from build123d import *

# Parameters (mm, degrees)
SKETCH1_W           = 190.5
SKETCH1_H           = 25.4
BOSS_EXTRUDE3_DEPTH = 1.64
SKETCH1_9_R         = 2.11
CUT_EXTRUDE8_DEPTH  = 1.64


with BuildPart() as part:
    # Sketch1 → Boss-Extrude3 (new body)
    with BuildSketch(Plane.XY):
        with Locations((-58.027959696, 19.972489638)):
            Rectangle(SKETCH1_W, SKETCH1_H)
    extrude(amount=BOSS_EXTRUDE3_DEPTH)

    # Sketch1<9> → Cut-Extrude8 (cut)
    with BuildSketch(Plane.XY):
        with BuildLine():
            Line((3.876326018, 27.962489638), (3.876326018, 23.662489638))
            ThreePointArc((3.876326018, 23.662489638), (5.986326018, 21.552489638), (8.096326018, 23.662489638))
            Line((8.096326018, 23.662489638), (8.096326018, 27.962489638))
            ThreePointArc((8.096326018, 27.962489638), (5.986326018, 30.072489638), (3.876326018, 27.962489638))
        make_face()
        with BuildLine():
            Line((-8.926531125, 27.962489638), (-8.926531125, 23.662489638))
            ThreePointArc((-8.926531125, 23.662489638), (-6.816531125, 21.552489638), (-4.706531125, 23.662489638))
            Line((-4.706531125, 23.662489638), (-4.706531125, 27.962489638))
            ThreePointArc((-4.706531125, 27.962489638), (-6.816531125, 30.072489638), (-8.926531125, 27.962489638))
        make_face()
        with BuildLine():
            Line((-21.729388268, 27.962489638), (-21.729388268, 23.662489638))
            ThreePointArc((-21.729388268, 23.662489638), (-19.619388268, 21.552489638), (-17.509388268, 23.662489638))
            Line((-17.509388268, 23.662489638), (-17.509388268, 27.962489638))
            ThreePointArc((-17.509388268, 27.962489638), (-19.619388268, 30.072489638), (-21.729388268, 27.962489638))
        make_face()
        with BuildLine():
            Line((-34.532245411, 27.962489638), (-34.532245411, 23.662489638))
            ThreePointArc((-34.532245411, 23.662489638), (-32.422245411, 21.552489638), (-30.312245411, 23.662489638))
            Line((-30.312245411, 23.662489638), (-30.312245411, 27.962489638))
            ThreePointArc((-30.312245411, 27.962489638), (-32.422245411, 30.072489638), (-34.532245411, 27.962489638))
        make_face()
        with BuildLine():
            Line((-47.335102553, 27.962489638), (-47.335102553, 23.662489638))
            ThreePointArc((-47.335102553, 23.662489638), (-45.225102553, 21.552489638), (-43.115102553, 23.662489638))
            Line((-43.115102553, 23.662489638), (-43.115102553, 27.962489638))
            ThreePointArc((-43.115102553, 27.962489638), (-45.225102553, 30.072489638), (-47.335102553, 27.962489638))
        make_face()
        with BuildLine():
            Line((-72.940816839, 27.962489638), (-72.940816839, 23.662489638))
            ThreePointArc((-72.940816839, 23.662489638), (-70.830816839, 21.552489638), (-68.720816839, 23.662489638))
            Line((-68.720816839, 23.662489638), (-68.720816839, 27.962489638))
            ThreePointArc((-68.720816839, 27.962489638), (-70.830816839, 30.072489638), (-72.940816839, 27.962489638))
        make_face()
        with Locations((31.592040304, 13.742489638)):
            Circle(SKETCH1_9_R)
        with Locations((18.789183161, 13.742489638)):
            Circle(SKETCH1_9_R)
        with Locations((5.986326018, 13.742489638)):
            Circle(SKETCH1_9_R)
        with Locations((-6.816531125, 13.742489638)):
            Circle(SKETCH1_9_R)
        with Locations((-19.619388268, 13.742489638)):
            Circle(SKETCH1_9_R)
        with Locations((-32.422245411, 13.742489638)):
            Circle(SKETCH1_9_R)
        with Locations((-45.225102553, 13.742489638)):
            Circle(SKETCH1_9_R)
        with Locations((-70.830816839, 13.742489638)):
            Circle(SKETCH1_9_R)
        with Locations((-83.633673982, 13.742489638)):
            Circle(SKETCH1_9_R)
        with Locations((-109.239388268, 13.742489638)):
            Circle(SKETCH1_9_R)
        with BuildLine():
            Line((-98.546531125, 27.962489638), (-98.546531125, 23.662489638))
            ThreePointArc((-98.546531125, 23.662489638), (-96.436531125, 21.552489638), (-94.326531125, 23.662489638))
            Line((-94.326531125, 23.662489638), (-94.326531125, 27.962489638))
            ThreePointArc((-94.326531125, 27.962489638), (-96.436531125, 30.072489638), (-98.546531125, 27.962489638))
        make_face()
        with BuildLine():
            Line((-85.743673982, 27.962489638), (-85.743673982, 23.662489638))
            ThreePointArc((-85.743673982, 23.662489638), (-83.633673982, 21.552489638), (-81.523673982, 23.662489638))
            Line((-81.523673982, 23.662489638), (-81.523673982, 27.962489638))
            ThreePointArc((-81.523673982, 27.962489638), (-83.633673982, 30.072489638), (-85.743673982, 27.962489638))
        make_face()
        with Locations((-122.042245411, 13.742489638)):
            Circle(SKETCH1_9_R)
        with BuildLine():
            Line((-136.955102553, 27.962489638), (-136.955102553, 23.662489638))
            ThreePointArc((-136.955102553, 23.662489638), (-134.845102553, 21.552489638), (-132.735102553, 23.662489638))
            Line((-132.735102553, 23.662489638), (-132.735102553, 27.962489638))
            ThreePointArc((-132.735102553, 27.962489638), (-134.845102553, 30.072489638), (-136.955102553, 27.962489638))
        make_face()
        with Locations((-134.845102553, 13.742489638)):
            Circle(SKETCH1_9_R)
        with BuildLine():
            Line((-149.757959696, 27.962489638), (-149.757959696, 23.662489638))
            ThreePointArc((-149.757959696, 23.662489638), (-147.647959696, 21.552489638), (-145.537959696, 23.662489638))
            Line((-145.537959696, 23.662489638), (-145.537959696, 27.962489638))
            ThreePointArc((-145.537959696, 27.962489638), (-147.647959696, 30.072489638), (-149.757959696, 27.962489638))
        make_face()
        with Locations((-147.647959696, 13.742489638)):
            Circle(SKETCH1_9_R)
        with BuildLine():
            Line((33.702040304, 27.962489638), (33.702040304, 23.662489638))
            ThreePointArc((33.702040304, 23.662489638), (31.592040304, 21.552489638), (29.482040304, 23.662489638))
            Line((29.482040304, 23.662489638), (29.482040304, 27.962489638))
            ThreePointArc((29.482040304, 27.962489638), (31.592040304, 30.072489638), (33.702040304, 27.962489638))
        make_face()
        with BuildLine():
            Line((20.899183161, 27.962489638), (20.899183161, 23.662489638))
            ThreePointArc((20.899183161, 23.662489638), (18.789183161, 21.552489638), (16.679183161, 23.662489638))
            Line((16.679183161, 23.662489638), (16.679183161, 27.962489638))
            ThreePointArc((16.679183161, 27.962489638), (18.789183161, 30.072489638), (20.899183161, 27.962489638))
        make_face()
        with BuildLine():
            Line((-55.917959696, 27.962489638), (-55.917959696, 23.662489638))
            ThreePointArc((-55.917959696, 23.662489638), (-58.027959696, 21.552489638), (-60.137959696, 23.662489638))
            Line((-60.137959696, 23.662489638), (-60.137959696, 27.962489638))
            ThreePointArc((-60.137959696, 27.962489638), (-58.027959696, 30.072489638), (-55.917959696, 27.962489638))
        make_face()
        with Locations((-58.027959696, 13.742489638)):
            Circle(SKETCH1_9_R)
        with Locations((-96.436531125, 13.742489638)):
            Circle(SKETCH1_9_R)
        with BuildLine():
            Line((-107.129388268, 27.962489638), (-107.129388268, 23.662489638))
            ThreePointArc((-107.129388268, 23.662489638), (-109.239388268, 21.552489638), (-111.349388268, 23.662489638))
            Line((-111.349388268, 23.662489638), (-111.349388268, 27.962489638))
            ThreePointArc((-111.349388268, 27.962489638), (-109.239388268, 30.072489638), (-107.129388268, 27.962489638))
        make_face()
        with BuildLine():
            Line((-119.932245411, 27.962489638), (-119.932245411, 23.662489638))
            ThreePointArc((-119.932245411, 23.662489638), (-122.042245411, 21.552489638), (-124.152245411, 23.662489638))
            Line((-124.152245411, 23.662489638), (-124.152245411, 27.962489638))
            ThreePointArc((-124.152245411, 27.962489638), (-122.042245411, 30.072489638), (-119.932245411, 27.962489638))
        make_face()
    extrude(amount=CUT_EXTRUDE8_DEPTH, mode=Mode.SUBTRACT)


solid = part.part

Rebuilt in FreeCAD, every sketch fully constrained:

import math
import FreeCAD as App
import Part
import Sketcher
from FreeCAD import Vector
Q = App.Units.Quantity

doc = App.newDocument("Part")
params = doc.addObject("Spreadsheet::Sheet", "Params")
for row, (alias, value) in enumerate([
    ("sketch1_height", "1 in"),
    ("sketch1_width", "7.5 in"),
    ("pad1_length", "1.64 mm"),
    ("pocket1_length", "1.64 mm"),
], start=1):
    params.set(f"A{row}", alias)
    params.set(f"B{row}", "=" + value)
    params.setAlias(f"B{row}", alias)

body = doc.addObject("PartDesign::Body", "Body")

sketch1 = body.newObject("Sketcher::SketchObject", "Sketch")
sketch1.AttachmentSupport = (doc.getObject("XY_Plane"), [""])
sketch1.MapMode = "FlatFace"
sketch1.addGeometry(Part.LineSegment(Vector(-153.27796, 32.67249, 0), Vector(-153.27796, 7.27249, 0)), False)
sketch1.addGeometry(Part.LineSegment(Vector(-153.27796, 7.27249, 0), Vector(37.22204, 7.27249, 0)), False)
sketch1.addGeometry(Part.LineSegment(Vector(37.22204, 7.27249, 0), Vector(37.22204, 32.67249, 0)), False)
sketch1.addGeometry(Part.LineSegment(Vector(37.22204, 32.67249, 0), Vector(-153.27796, 32.67249, 0)), False)
sketch1.addConstraint(Sketcher.Constraint("Coincident", 0, 2, 1, 1))
sketch1.addConstraint(Sketcher.Constraint("Coincident", 1, 2, 2, 1))
sketch1.addConstraint(Sketcher.Constraint("Coincident", 2, 2, 3, 1))
sketch1.addConstraint(Sketcher.Constraint("Coincident", 3, 2, 0, 1))
sketch1.addConstraint(Sketcher.Constraint("Vertical", 0))
sketch1.addConstraint(Sketcher.Constraint("Horizontal", 1))
sketch1.addConstraint(Sketcher.Constraint("Vertical", 2))
sketch1.addConstraint(Sketcher.Constraint("Horizontal", 3))
sketch1.addConstraint(Sketcher.Constraint("DistanceY", 0, 2, 0, 1, Q("1 in")))
sketch1.addConstraint(Sketcher.Constraint("DistanceX", 1, 1, 1, 2, Q("7.5 in")))
sketch1.addConstraint(Sketcher.Constraint("DistanceX", 0, 2, -1, 1, 153.27796))
sketch1.addConstraint(Sketcher.Constraint("DistanceY", -1, 1, 0, 2, 7.27249))
sketch1.setExpression("Constraints[8]", "Params.sketch1_height")
sketch1.setExpression("Constraints[9]", "Params.sketch1_width")
pad1 = body.newObject("PartDesign::Pad", "Pad")
pad1.Profile = sketch1
pad1.setExpression("Length", "Params.pad1_length")

sketch2 = body.newObject("Sketcher::SketchObject", "Sketch001")
sketch2.AttachmentSupport = (doc.getObject("XY_Plane"), [""])
sketch2.MapMode = "FlatFace"
sketch2.addGeometry(Part.LineSegment(Vector(3.876326, 27.96249, 0), Vector(3.876326, 23.66249, 0)), False)
sketch2.addGeometry(Part.ArcOfCircle(Part.Circle(Vector(5.986326, 23.66249, 0), Vector(0, 0, 1), 2.11), math.radians(180), math.radians(360)), False)
sketch2.addGeometry(Part.LineSegment(Vector(8.096326, 23.66249, 0), Vector(8.096326, 27.96249, 0)), False)
sketch2.addGeometry(Part.ArcOfCircle(Part.Circle(Vector(5.986326, 27.96249, 0), Vector(0, 0, 1), 2.11), math.radians(0), math.radians(180)), False)
sketch2.addGeometry(Part.LineSegment(Vector(-8.926531, 27.96249, 0), Vector(-8.926531, 23.66249, 0)), False)
sketch2.addGeometry(Part.ArcOfCircle(Part.Circle(Vector(-6.816531, 23.66249, 0), Vector(0, 0, 1), 2.11), math.radians(180), math.radians(360)), False)
sketch2.addGeometry(Part.LineSegment(Vector(-4.706531, 23.66249, 0), Vector(-4.706531, 27.96249, 0)), False)
sketch2.addGeometry(Part.ArcOfCircle(Part.Circle(Vector(-6.816531, 27.96249, 0), Vector(0, 0, 1), 2.11), math.radians(0), math.radians(180)), False)
sketch2.addGeometry(Part.LineSegment(Vector(-21.729388, 27.96249, 0), Vector(-21.729388, 23.66249, 0)), False)
sketch2.addGeometry(Part.ArcOfCircle(Part.Circle(Vector(-19.619388, 23.66249, 0), Vector(0, 0, 1), 2.11), math.radians(180), math.radians(360)), False)
sketch2.addGeometry(Part.LineSegment(Vector(-17.509388, 23.66249, 0), Vector(-17.509388, 27.96249, 0)), False)
sketch2.addGeometry(Part.ArcOfCircle(Part.Circle(Vector(-19.619388, 27.96249, 0), Vector(0, 0, 1), 2.11), math.radians(0), math.radians(180)), False)
sketch2.addGeometry(Part.LineSegment(Vector(-34.532245, 27.96249, 0), Vector(-34.532245, 23.66249, 0)), False)
sketch2.addGeometry(Part.ArcOfCircle(Part.Circle(Vector(-32.422245, 23.66249, 0), Vector(0, 0, 1), 2.11), math.radians(180), math.radians(360)), False)
sketch2.addGeometry(Part.LineSegment(Vector(-30.312245, 23.66249, 0), Vector(-30.312245, 27.96249, 0)), False)
sketch2.addGeometry(Part.ArcOfCircle(Part.Circle(Vector(-32.422245, 27.96249, 0), Vector(0, 0, 1), 2.11), math.radians(0), math.radians(180)), False)
sketch2.addGeometry(Part.LineSegment(Vector(-47.335103, 27.96249, 0), Vector(-47.335103, 23.66249, 0)), False)
sketch2.addGeometry(Part.ArcOfCircle(Part.Circle(Vector(-45.225103, 23.66249, 0), Vector(0, 0, 1), 2.11), math.radians(180), math.radians(360)), False)
sketch2.addGeometry(Part.LineSegment(Vector(-43.115103, 23.66249, 0), Vector(-43.115103, 27.96249, 0)), False)
sketch2.addGeometry(Part.ArcOfCircle(Part.Circle(Vector(-45.225103, 27.96249, 0), Vector(0, 0, 1), 2.11), math.radians(0), math.radians(180)), False)
sketch2.addGeometry(Part.LineSegment(Vector(-72.940817, 27.96249, 0), Vector(-72.940817, 23.66249, 0)), False)
sketch2.addGeometry(Part.ArcOfCircle(Part.Circle(Vector(-70.830817, 23.66249, 0), Vector(0, 0, 1), 2.11), math.radians(180), math.radians(360)), False)
sketch2.addGeometry(Part.LineSegment(Vector(-68.720817, 23.66249, 0), Vector(-68.720817, 27.96249, 0)), False)
sketch2.addGeometry(Part.ArcOfCircle(Part.Circle(Vector(-70.830817, 27.96249, 0), Vector(0, 0, 1), 2.11), math.radians(0), math.radians(180)), False)
sketch2.addGeometry(Part.Circle(Vector(31.59204, 13.74249, 0), Vector(0, 0, 1), 2.11), False)
sketch2.addGeometry(Part.Circle(Vector(18.789183, 13.74249, 0), Vector(0, 0, 1), 2.11), False)
sketch2.addGeometry(Part.Circle(Vector(5.986326, 13.74249, 0), Vector(0, 0, 1), 2.11), False)
sketch2.addGeometry(Part.Circle(Vector(-6.816531, 13.74249, 0), Vector(0, 0, 1), 2.11), False)
sketch2.addGeometry(Part.Circle(Vector(-19.619388, 13.74249, 0), Vector(0, 0, 1), 2.11), False)
sketch2.addGeometry(Part.Circle(Vector(-32.422245, 13.74249, 0), Vector(0, 0, 1), 2.11), False)
sketch2.addGeometry(Part.Circle(Vector(-45.225103, 13.74249, 0), Vector(0, 0, 1), 2.11), False)
sketch2.addGeometry(Part.Circle(Vector(-70.830817, 13.74249, 0), Vector(0, 0, 1), 2.11), False)
sketch2.addGeometry(Part.Circle(Vector(-83.633674, 13.74249, 0), Vector(0, 0, 1), 2.11), False)
sketch2.addGeometry(Part.Circle(Vector(-109.239388, 13.74249, 0), Vector(0, 0, 1), 2.11), False)
sketch2.addGeometry(Part.LineSegment(Vector(-98.546531, 27.96249, 0), Vector(-98.546531, 23.66249, 0)), False)
sketch2.addGeometry(Part.ArcOfCircle(Part.Circle(Vector(-96.436531, 23.66249, 0), Vector(0, 0, 1), 2.11), math.radians(180), math.radians(360)), False)
sketch2.addGeometry(Part.LineSegment(Vector(-94.326531, 23.66249, 0), Vector(-94.326531, 27.96249, 0)), False)
sketch2.addGeometry(Part.ArcOfCircle(Part.Circle(Vector(-96.436531, 27.96249, 0), Vector(0, 0, 1), 2.11), math.radians(0), math.radians(180)), False)
sketch2.addGeometry(Part.LineSegment(Vector(-85.743674, 27.96249, 0), Vector(-85.743674, 23.66249, 0)), False)
sketch2.addGeometry(Part.ArcOfCircle(Part.Circle(Vector(-83.633674, 23.66249, 0), Vector(0, 0, 1), 2.11), math.radians(180), math.radians(360)), False)
sketch2.addGeometry(Part.LineSegment(Vector(-81.523674, 23.66249, 0), Vector(-81.523674, 27.96249, 0)), False)
sketch2.addGeometry(Part.ArcOfCircle(Part.Circle(Vector(-83.633674, 27.96249, 0), Vector(0, 0, 1), 2.11), math.radians(0), math.radians(180)), False)
sketch2.addGeometry(Part.Circle(Vector(-122.042245, 13.74249, 0), Vector(0, 0, 1), 2.11), False)
sketch2.addGeometry(Part.LineSegment(Vector(-136.955103, 27.96249, 0), Vector(-136.955103, 23.66249, 0)), False)
sketch2.addGeometry(Part.ArcOfCircle(Part.Circle(Vector(-134.845103, 23.66249, 0), Vector(0, 0, 1), 2.11), math.radians(180), math.radians(360)), False)
sketch2.addGeometry(Part.LineSegment(Vector(-132.735103, 23.66249, 0), Vector(-132.735103, 27.96249, 0)), False)
sketch2.addGeometry(Part.ArcOfCircle(Part.Circle(Vector(-134.845103, 27.96249, 0), Vector(0, 0, 1), 2.11), math.radians(0), math.radians(180)), False)
sketch2.addGeometry(Part.Circle(Vector(-134.845103, 13.74249, 0), Vector(0, 0, 1), 2.11), False)
sketch2.addGeometry(Part.LineSegment(Vector(-149.75796, 27.96249, 0), Vector(-149.75796, 23.66249, 0)), False)
sketch2.addGeometry(Part.ArcOfCircle(Part.Circle(Vector(-147.64796, 23.66249, 0), Vector(0, 0, 1), 2.11), math.radians(180), math.radians(360)), False)
sketch2.addGeometry(Part.LineSegment(Vector(-145.53796, 23.66249, 0), Vector(-145.53796, 27.96249, 0)), False)
sketch2.addGeometry(Part.ArcOfCircle(Part.Circle(Vector(-147.64796, 27.96249, 0), Vector(0, 0, 1), 2.11), math.radians(0), math.radians(180)), False)
sketch2.addGeometry(Part.Circle(Vector(-147.64796, 13.74249, 0), Vector(0, 0, 1), 2.11), False)
sketch2.addGeometry(Part.LineSegment(Vector(33.70204, 23.66249, 0), Vector(33.70204, 27.96249, 0)), False)
sketch2.addGeometry(Part.ArcOfCircle(Part.Circle(Vector(31.59204, 27.96249, 0), Vector(0, 0, 1), 2.11), math.radians(0), math.radians(180)), False)
sketch2.addGeometry(Part.LineSegment(Vector(29.48204, 27.96249, 0), Vector(29.48204, 23.66249, 0)), False)
sketch2.addGeometry(Part.ArcOfCircle(Part.Circle(Vector(31.59204, 23.66249, 0), Vector(0, 0, 1), 2.11), math.radians(180), math.radians(360)), False)
sketch2.addGeometry(Part.LineSegment(Vector(20.899183, 23.66249, 0), Vector(20.899183, 27.96249, 0)), False)
sketch2.addGeometry(Part.ArcOfCircle(Part.Circle(Vector(18.789183, 27.96249, 0), Vector(0, 0, 1), 2.11), math.radians(0), math.radians(180)), False)
sketch2.addGeometry(Part.LineSegment(Vector(16.679183, 27.96249, 0), Vector(16.679183, 23.66249, 0)), False)
sketch2.addGeometry(Part.ArcOfCircle(Part.Circle(Vector(18.789183, 23.66249, 0), Vector(0, 0, 1), 2.11), math.radians(180), math.radians(360)), False)
sketch2.addGeometry(Part.LineSegment(Vector(-55.91796, 23.66249, 0), Vector(-55.91796, 27.96249, 0)), False)
sketch2.addGeometry(Part.ArcOfCircle(Part.Circle(Vector(-58.02796, 27.96249, 0), Vector(0, 0, 1), 2.11), math.radians(0), math.radians(180)), False)
sketch2.addGeometry(Part.LineSegment(Vector(-60.13796, 27.96249, 0), Vector(-60.13796, 23.66249, 0)), False)
sketch2.addGeometry(Part.ArcOfCircle(Part.Circle(Vector(-58.02796, 23.66249, 0), Vector(0, 0, 1), 2.11), math.radians(180), math.radians(360)), False)
sketch2.addGeometry(Part.Circle(Vector(-58.02796, 13.74249, 0), Vector(0, 0, 1), 2.11), False)
sketch2.addGeometry(Part.Circle(Vector(-96.436531, 13.74249, 0), Vector(0, 0, 1), 2.11), False)
sketch2.addGeometry(Part.LineSegment(Vector(-107.129388, 23.66249, 0), Vector(-107.129388, 27.96249, 0)), False)
sketch2.addGeometry(Part.ArcOfCircle(Part.Circle(Vector(-109.239388, 27.96249, 0), Vector(0, 0, 1), 2.11), math.radians(0), math.radians(180)), False)
sketch2.addGeometry(Part.LineSegment(Vector(-111.349388, 27.96249, 0), Vector(-111.349388, 23.66249, 0)), False)
sketch2.addGeometry(Part.ArcOfCircle(Part.Circle(Vector(-109.239388, 23.66249, 0), Vector(0, 0, 1), 2.11), math.radians(180), math.radians(360)), False)
sketch2.addGeometry(Part.LineSegment(Vector(-119.932245, 23.66249, 0), Vector(-119.932245, 27.96249, 0)), False)
sketch2.addGeometry(Part.ArcOfCircle(Part.Circle(Vector(-122.042245, 27.96249, 0), Vector(0, 0, 1), 2.11), math.radians(0), math.radians(180)), False)
sketch2.addGeometry(Part.LineSegment(Vector(-124.152245, 27.96249, 0), Vector(-124.152245, 23.66249, 0)), False)
sketch2.addGeometry(Part.ArcOfCircle(Part.Circle(Vector(-122.042245, 23.66249, 0), Vector(0, 0, 1), 2.11), math.radians(180), math.radians(360)), False)
sketch2.addConstraint(Sketcher.Constraint("Tangent", 0, 2, 1, 1))
sketch2.addConstraint(Sketcher.Constraint("Tangent", 1, 2, 2, 1))
sketch2.addConstraint(Sketcher.Constraint("Tangent", 2, 2, 3, 1))
sketch2.addConstraint(Sketcher.Constraint("Tangent", 3, 2, 0, 1))
sketch2.addConstraint(Sketcher.Constraint("Tangent", 4, 2, 5, 1))
sketch2.addConstraint(Sketcher.Constraint("Tangent", 5, 2, 6, 1))
sketch2.addConstraint(Sketcher.Constraint("Tangent", 6, 2, 7, 1))
sketch2.addConstraint(Sketcher.Constraint("Tangent", 7, 2, 4, 1))
sketch2.addConstraint(Sketcher.Constraint("Tangent", 8, 2, 9, 1))
sketch2.addConstraint(Sketcher.Constraint("Tangent", 9, 2, 10, 1))
sketch2.addConstraint(Sketcher.Constraint("Tangent", 10, 2, 11, 1))
sketch2.addConstraint(Sketcher.Constraint("Tangent", 11, 2, 8, 1))
sketch2.addConstraint(Sketcher.Constraint("Tangent", 12, 2, 13, 1))
sketch2.addConstraint(Sketcher.Constraint("Tangent", 13, 2, 14, 1))
sketch2.addConstraint(Sketcher.Constraint("Tangent", 14, 2, 15, 1))
sketch2.addConstraint(Sketcher.Constraint("Tangent", 15, 2, 12, 1))
sketch2.addConstraint(Sketcher.Constraint("Tangent", 16, 2, 17, 1))
sketch2.addConstraint(Sketcher.Constraint("Tangent", 17, 2, 18, 1))
sketch2.addConstraint(Sketcher.Constraint("Tangent", 18, 2, 19, 1))
sketch2.addConstraint(Sketcher.Constraint("Tangent", 19, 2, 16, 1))
sketch2.addConstraint(Sketcher.Constraint("Tangent", 20, 2, 21, 1))
sketch2.addConstraint(Sketcher.Constraint("Tangent", 21, 2, 22, 1))
sketch2.addConstraint(Sketcher.Constraint("Tangent", 22, 2, 23, 1))
sketch2.addConstraint(Sketcher.Constraint("Tangent", 23, 2, 20, 1))
sketch2.addConstraint(Sketcher.Constraint("Tangent", 34, 2, 35, 1))
sketch2.addConstraint(Sketcher.Constraint("Tangent", 35, 2, 36, 1))
sketch2.addConstraint(Sketcher.Constraint("Tangent", 36, 2, 37, 1))
sketch2.addConstraint(Sketcher.Constraint("Tangent", 37, 2, 34, 1))
sketch2.addConstraint(Sketcher.Constraint("Tangent", 38, 2, 39, 1))
sketch2.addConstraint(Sketcher.Constraint("Tangent", 39, 2, 40, 1))
sketch2.addConstraint(Sketcher.Constraint("Tangent", 40, 2, 41, 1))
sketch2.addConstraint(Sketcher.Constraint("Tangent", 41, 2, 38, 1))
sketch2.addConstraint(Sketcher.Constraint("Tangent", 43, 2, 44, 1))
sketch2.addConstraint(Sketcher.Constraint("Tangent", 44, 2, 45, 1))
sketch2.addConstraint(Sketcher.Constraint("Tangent", 45, 2, 46, 1))
sketch2.addConstraint(Sketcher.Constraint("Tangent", 46, 2, 43, 1))
sketch2.addConstraint(Sketcher.Constraint("Tangent", 48, 2, 49, 1))
sketch2.addConstraint(Sketcher.Constraint("Tangent", 49, 2, 50, 1))
sketch2.addConstraint(Sketcher.Constraint("Tangent", 50, 2, 51, 1))
sketch2.addConstraint(Sketcher.Constraint("Tangent", 51, 2, 48, 1))
sketch2.addConstraint(Sketcher.Constraint("Tangent", 53, 2, 54, 1))
sketch2.addConstraint(Sketcher.Constraint("Tangent", 54, 2, 55, 1))
sketch2.addConstraint(Sketcher.Constraint("Tangent", 55, 2, 56, 1))
sketch2.addConstraint(Sketcher.Constraint("Tangent", 56, 2, 53, 1))
sketch2.addConstraint(Sketcher.Constraint("Tangent", 57, 2, 58, 1))
sketch2.addConstraint(Sketcher.Constraint("Tangent", 58, 2, 59, 1))
sketch2.addConstraint(Sketcher.Constraint("Tangent", 59, 2, 60, 1))
sketch2.addConstraint(Sketcher.Constraint("Tangent", 60, 2, 57, 1))
sketch2.addConstraint(Sketcher.Constraint("Tangent", 61, 2, 62, 1))
sketch2.addConstraint(Sketcher.Constraint("Tangent", 62, 2, 63, 1))
sketch2.addConstraint(Sketcher.Constraint("Tangent", 63, 2, 64, 1))
sketch2.addConstraint(Sketcher.Constraint("Tangent", 64, 2, 61, 1))
sketch2.addConstraint(Sketcher.Constraint("Tangent", 67, 2, 68, 1))
sketch2.addConstraint(Sketcher.Constraint("Tangent", 68, 2, 69, 1))
sketch2.addConstraint(Sketcher.Constraint("Tangent", 69, 2, 70, 1))
sketch2.addConstraint(Sketcher.Constraint("Tangent", 70, 2, 67, 1))
sketch2.addConstraint(Sketcher.Constraint("Tangent", 71, 2, 72, 1))
sketch2.addConstraint(Sketcher.Constraint("Tangent", 72, 2, 73, 1))
sketch2.addConstraint(Sketcher.Constraint("Tangent", 73, 2, 74, 1))
sketch2.addConstraint(Sketcher.Constraint("Tangent", 74, 2, 71, 1))
sketch2.addConstraint(Sketcher.Constraint("Vertical", 0))
sketch2.addConstraint(Sketcher.Constraint("Vertical", 2))
sketch2.addConstraint(Sketcher.Constraint("Vertical", 4))
sketch2.addConstraint(Sketcher.Constraint("Vertical", 6))
sketch2.addConstraint(Sketcher.Constraint("Vertical", 8))
sketch2.addConstraint(Sketcher.Constraint("Vertical", 10))
sketch2.addConstraint(Sketcher.Constraint("Vertical", 12))
sketch2.addConstraint(Sketcher.Constraint("Vertical", 14))
sketch2.addConstraint(Sketcher.Constraint("Vertical", 16))
sketch2.addConstraint(Sketcher.Constraint("Vertical", 18))
sketch2.addConstraint(Sketcher.Constraint("Vertical", 20))
sketch2.addConstraint(Sketcher.Constraint("Vertical", 22))
sketch2.addConstraint(Sketcher.Constraint("Vertical", 34))
sketch2.addConstraint(Sketcher.Constraint("Vertical", 36))
sketch2.addConstraint(Sketcher.Constraint("Vertical", 38))
sketch2.addConstraint(Sketcher.Constraint("Vertical", 40))
sketch2.addConstraint(Sketcher.Constraint("Vertical", 43))
sketch2.addConstraint(Sketcher.Constraint("Vertical", 45))
sketch2.addConstraint(Sketcher.Constraint("Vertical", 48))
sketch2.addConstraint(Sketcher.Constraint("Vertical", 50))
sketch2.addConstraint(Sketcher.Constraint("Vertical", 53))
sketch2.addConstraint(Sketcher.Constraint("Vertical", 55))
sketch2.addConstraint(Sketcher.Constraint("Vertical", 57))
sketch2.addConstraint(Sketcher.Constraint("Vertical", 59))
sketch2.addConstraint(Sketcher.Constraint("Vertical", 61))
sketch2.addConstraint(Sketcher.Constraint("Vertical", 63))
sketch2.addConstraint(Sketcher.Constraint("Vertical", 67))
sketch2.addConstraint(Sketcher.Constraint("Vertical", 69))
sketch2.addConstraint(Sketcher.Constraint("Vertical", 71))
sketch2.addConstraint(Sketcher.Constraint("Vertical", 73))
sketch2.addConstraint(Sketcher.Constraint("Equal", 3, 5))
sketch2.addConstraint(Sketcher.Constraint("Equal", 7, 9))
sketch2.addConstraint(Sketcher.Constraint("Equal", 11, 13))
sketch2.addConstraint(Sketcher.Constraint("Equal", 15, 17))
sketch2.addConstraint(Sketcher.Constraint("Equal", 19, 21))
sketch2.addConstraint(Sketcher.Constraint("Equal", 23, 24))
sketch2.addConstraint(Sketcher.Constraint("Equal", 24, 25))
sketch2.addConstraint(Sketcher.Constraint("Equal", 25, 26))
sketch2.addConstraint(Sketcher.Constraint("Equal", 26, 27))
sketch2.addConstraint(Sketcher.Constraint("Equal", 27, 28))
sketch2.addConstraint(Sketcher.Constraint("Equal", 28, 29))
sketch2.addConstraint(Sketcher.Constraint("Equal", 29, 30))
sketch2.addConstraint(Sketcher.Constraint("Equal", 30, 31))
sketch2.addConstraint(Sketcher.Constraint("Equal", 31, 32))
sketch2.addConstraint(Sketcher.Constraint("Equal", 32, 33))
sketch2.addConstraint(Sketcher.Constraint("Equal", 33, 35))
sketch2.addConstraint(Sketcher.Constraint("Equal", 37, 39))
sketch2.addConstraint(Sketcher.Constraint("Equal", 41, 42))
sketch2.addConstraint(Sketcher.Constraint("Equal", 42, 44))
sketch2.addConstraint(Sketcher.Constraint("Equal", 46, 47))
sketch2.addConstraint(Sketcher.Constraint("Equal", 47, 49))
sketch2.addConstraint(Sketcher.Constraint("Equal", 51, 52))
sketch2.addConstraint(Sketcher.Constraint("Equal", 52, 54))
sketch2.addConstraint(Sketcher.Constraint("Equal", 56, 58))
sketch2.addConstraint(Sketcher.Constraint("Equal", 60, 62))
sketch2.addConstraint(Sketcher.Constraint("Equal", 64, 65))
sketch2.addConstraint(Sketcher.Constraint("Equal", 65, 66))
sketch2.addConstraint(Sketcher.Constraint("Equal", 66, 68))
sketch2.addConstraint(Sketcher.Constraint("Equal", 70, 72))
sketch2.addConstraint(Sketcher.Constraint("Horizontal", 1, 3, 5, 3))
sketch2.addConstraint(Sketcher.Constraint("Horizontal", 3, 3, 7, 3))
sketch2.addConstraint(Sketcher.Constraint("Horizontal", 5, 3, 9, 3))
sketch2.addConstraint(Sketcher.Constraint("Horizontal", 7, 3, 11, 3))
sketch2.addConstraint(Sketcher.Constraint("Horizontal", 9, 3, 13, 3))
sketch2.addConstraint(Sketcher.Constraint("Horizontal", 11, 3, 15, 3))
sketch2.addConstraint(Sketcher.Constraint("Horizontal", 13, 3, 17, 3))
sketch2.addConstraint(Sketcher.Constraint("Horizontal", 15, 3, 19, 3))
sketch2.addConstraint(Sketcher.Constraint("Horizontal", 17, 3, 21, 3))
sketch2.addConstraint(Sketcher.Constraint("Horizontal", 19, 3, 23, 3))
sketch2.addConstraint(Sketcher.Constraint("Horizontal", 24, 3, 25, 3))
sketch2.addConstraint(Sketcher.Constraint("Horizontal", 25, 3, 26, 3))
sketch2.addConstraint(Sketcher.Constraint("Horizontal", 26, 3, 27, 3))
sketch2.addConstraint(Sketcher.Constraint("Horizontal", 27, 3, 28, 3))
sketch2.addConstraint(Sketcher.Constraint("Horizontal", 28, 3, 29, 3))
sketch2.addConstraint(Sketcher.Constraint("Horizontal", 29, 3, 30, 3))
sketch2.addConstraint(Sketcher.Constraint("Horizontal", 30, 3, 31, 3))
sketch2.addConstraint(Sketcher.Constraint("Horizontal", 31, 3, 32, 3))
sketch2.addConstraint(Sketcher.Constraint("Horizontal", 32, 3, 33, 3))
sketch2.addConstraint(Sketcher.Constraint("Horizontal", 21, 3, 35, 3))
sketch2.addConstraint(Sketcher.Constraint("Horizontal", 23, 3, 37, 3))
sketch2.addConstraint(Sketcher.Constraint("Horizontal", 35, 3, 39, 3))
sketch2.addConstraint(Sketcher.Constraint("Horizontal", 37, 3, 41, 3))
sketch2.addConstraint(Sketcher.Constraint("Horizontal", 33, 3, 42, 3))
sketch2.addConstraint(Sketcher.Constraint("Horizontal", 39, 3, 44, 3))
sketch2.addConstraint(Sketcher.Constraint("Horizontal", 41, 3, 46, 3))
sketch2.addConstraint(Sketcher.Constraint("Horizontal", 42, 3, 47, 3))
sketch2.addConstraint(Sketcher.Constraint("Horizontal", 44, 3, 49, 3))
sketch2.addConstraint(Sketcher.Constraint("Horizontal", 46, 3, 51, 3))
sketch2.addConstraint(Sketcher.Constraint("Horizontal", 47, 3, 52, 3))
sketch2.addConstraint(Sketcher.Constraint("Horizontal", 51, 3, 54, 3))
sketch2.addConstraint(Sketcher.Constraint("Horizontal", 49, 3, 56, 3))
sketch2.addConstraint(Sketcher.Constraint("Horizontal", 54, 3, 58, 3))
sketch2.addConstraint(Sketcher.Constraint("Horizontal", 56, 3, 60, 3))
sketch2.addConstraint(Sketcher.Constraint("Horizontal", 58, 3, 62, 3))
sketch2.addConstraint(Sketcher.Constraint("Horizontal", 60, 3, 64, 3))
sketch2.addConstraint(Sketcher.Constraint("Horizontal", 52, 3, 65, 3))
sketch2.addConstraint(Sketcher.Constraint("Horizontal", 65, 3, 66, 3))
sketch2.addConstraint(Sketcher.Constraint("Horizontal", 62, 3, 68, 3))
sketch2.addConstraint(Sketcher.Constraint("Horizontal", 64, 3, 70, 3))
sketch2.addConstraint(Sketcher.Constraint("Horizontal", 68, 3, 72, 3))
sketch2.addConstraint(Sketcher.Constraint("Horizontal", 70, 3, 74, 3))
sketch2.addConstraint(Sketcher.Constraint("Vertical", 3, 3, 26, 3))
sketch2.addConstraint(Sketcher.Constraint("Vertical", 7, 3, 27, 3))
sketch2.addConstraint(Sketcher.Constraint("Vertical", 11, 3, 28, 3))
sketch2.addConstraint(Sketcher.Constraint("Vertical", 15, 3, 29, 3))
sketch2.addConstraint(Sketcher.Constraint("Vertical", 19, 3, 30, 3))
sketch2.addConstraint(Sketcher.Constraint("Vertical", 23, 3, 31, 3))
sketch2.addConstraint(Sketcher.Constraint("Vertical", 32, 3, 39, 3))
sketch2.addConstraint(Sketcher.Constraint("Vertical", 46, 3, 47, 3))
sketch2.addConstraint(Sketcher.Constraint("Vertical", 51, 3, 52, 3))
sketch2.addConstraint(Sketcher.Constraint("Vertical", 24, 3, 54, 3))
sketch2.addConstraint(Sketcher.Constraint("Vertical", 25, 3, 58, 3))
sketch2.addConstraint(Sketcher.Constraint("Vertical", 64, 3, 65, 3))
sketch2.addConstraint(Sketcher.Constraint("Vertical", 37, 3, 66, 3))
sketch2.addConstraint(Sketcher.Constraint("Vertical", 33, 3, 68, 3))
sketch2.addConstraint(Sketcher.Constraint("Vertical", 42, 3, 72, 3))
sketch2.addConstraint(Sketcher.Constraint("Diameter", 24, 4.22))
sketch2.addConstraint(Sketcher.Constraint("DistanceY", 0, 2, 0, 1, 4.3))
sketch2.addConstraint(Sketcher.Constraint("DistanceY", -1, 1, 1, 3, 23.66249))
sketch2.addConstraint(Sketcher.Constraint("DistanceX", 5, 3, -1, 1, 6.816531))
sketch2.addConstraint(Sketcher.Constraint("DistanceX", 9, 3, -1, 1, 19.619388))
sketch2.addConstraint(Sketcher.Constraint("DistanceX", -1, 1, 24, 3, 31.59204))
sketch2.addConstraint(Sketcher.Constraint("DistanceY", -1, 1, 24, 3, 13.74249))
sketch2.addConstraint(Sketcher.Constraint("DistanceX", 33, 3, -1, 1, 109.239388))
sketch2.addConstraint(Sketcher.Constraint("DistanceX", 35, 3, -1, 1, 96.436531))
sketch2.addConstraint(Sketcher.Constraint("DistanceX", 49, 3, -1, 1, 147.64796))
sketch2.addConstraint(Sketcher.Constraint("DistanceX", 62, 3, -1, 1, 58.02796))
sketch2.addConstraint(Sketcher.Constraint("DistanceX", -1, 1, 1, 3, 5.986326))
sketch2.addConstraint(Sketcher.Constraint("DistanceX", 13, 3, -1, 1, 32.422245))
sketch2.addConstraint(Sketcher.Constraint("DistanceX", 17, 3, -1, 1, 45.225103))
sketch2.addConstraint(Sketcher.Constraint("DistanceX", 21, 3, -1, 1, 70.830817))
sketch2.addConstraint(Sketcher.Constraint("DistanceX", -1, 1, 25, 3, 18.789183))
sketch2.addConstraint(Sketcher.Constraint("DistanceX", 32, 3, -1, 1, 83.633674))
sketch2.addConstraint(Sketcher.Constraint("DistanceX", 42, 3, -1, 1, 122.042245))
sketch2.addConstraint(Sketcher.Constraint("DistanceX", 44, 3, -1, 1, 134.845103))
pocket1 = body.newObject("PartDesign::Pocket", "Pocket")
pocket1.Profile = sketch2
pocket1.setExpression("Length", "Params.pocket1_length")
pocket1.Reversed = True

doc.recompute()
